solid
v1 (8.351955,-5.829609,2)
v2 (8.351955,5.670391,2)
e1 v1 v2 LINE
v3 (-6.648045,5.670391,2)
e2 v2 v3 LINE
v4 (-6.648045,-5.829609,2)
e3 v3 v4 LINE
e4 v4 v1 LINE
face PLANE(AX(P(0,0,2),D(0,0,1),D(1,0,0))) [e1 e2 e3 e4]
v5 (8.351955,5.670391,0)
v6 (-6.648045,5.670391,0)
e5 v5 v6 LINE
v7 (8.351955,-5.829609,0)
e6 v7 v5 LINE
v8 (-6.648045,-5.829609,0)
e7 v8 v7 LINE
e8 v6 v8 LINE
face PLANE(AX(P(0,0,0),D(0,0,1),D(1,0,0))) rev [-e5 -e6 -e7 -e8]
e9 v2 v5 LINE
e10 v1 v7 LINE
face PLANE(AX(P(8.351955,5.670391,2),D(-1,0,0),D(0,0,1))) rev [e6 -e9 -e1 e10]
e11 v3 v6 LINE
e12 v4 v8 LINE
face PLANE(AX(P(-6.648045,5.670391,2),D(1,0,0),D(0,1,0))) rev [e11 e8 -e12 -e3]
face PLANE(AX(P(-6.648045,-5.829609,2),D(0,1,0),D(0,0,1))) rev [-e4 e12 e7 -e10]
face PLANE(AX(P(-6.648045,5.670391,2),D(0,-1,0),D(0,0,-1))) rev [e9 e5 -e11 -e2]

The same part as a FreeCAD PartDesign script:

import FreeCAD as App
import Part
import Sketcher
Q = App.Units.Quantity


def add_polygon(sketch, points):
    """Adds a closed chain of lines whose ends are joined by coincident constraints."""
    first, n = sketch.GeometryCount, len(points)
    for a, b in zip(points, points[1:] + points[:1]):
        sketch.addGeometry(Part.LineSegment(App.Vector(*a, 0), App.Vector(*b, 0)), False)
    for i in range(n):
        sketch.addConstraint(Sketcher.Constraint("Coincident", first + i, 2, first + (i + 1) % n, 1))

doc = App.newDocument("Part")
body = doc.addObject("PartDesign::Body", "Body")

# Sketch on XY plane
sketch1 = body.newObject("Sketcher::SketchObject", "Sketch")
sketch1.AttachmentSupport = (doc.getObject("XY_Plane"), [""])
sketch1.MapMode = "FlatFace"
add_polygon(sketch1, [(-7, 6), (-7, -6), (8, -6), (8, 6)])  # lines 0-3
sketch1.addConstraint([
    Sketcher.Constraint("Vertical", 0),
    Sketcher.Constraint("Horizontal", 1),
    Sketcher.Constraint("Vertical", 2),
    Sketcher.Constraint("Horizontal", 3),
    Sketcher.Constraint("DistanceX", 1, 1, 1, 2, Q("15 mm")),
    Sketcher.Constraint("DistanceY", 0, 2, 0, 1, Q("11.5 mm")),
    Sketcher.Constraint("DistanceY", 0, 2, -1, 1, Q("5.829609 mm")),
    Sketcher.Constraint("DistanceX", 0, 2, -1, 1, Q("6.648045 mm")),
])
pad1 = body.newObject("PartDesign::Pad", "Pad")
pad1.Profile = sketch1
pad1.Length = 2

doc.recompute()
